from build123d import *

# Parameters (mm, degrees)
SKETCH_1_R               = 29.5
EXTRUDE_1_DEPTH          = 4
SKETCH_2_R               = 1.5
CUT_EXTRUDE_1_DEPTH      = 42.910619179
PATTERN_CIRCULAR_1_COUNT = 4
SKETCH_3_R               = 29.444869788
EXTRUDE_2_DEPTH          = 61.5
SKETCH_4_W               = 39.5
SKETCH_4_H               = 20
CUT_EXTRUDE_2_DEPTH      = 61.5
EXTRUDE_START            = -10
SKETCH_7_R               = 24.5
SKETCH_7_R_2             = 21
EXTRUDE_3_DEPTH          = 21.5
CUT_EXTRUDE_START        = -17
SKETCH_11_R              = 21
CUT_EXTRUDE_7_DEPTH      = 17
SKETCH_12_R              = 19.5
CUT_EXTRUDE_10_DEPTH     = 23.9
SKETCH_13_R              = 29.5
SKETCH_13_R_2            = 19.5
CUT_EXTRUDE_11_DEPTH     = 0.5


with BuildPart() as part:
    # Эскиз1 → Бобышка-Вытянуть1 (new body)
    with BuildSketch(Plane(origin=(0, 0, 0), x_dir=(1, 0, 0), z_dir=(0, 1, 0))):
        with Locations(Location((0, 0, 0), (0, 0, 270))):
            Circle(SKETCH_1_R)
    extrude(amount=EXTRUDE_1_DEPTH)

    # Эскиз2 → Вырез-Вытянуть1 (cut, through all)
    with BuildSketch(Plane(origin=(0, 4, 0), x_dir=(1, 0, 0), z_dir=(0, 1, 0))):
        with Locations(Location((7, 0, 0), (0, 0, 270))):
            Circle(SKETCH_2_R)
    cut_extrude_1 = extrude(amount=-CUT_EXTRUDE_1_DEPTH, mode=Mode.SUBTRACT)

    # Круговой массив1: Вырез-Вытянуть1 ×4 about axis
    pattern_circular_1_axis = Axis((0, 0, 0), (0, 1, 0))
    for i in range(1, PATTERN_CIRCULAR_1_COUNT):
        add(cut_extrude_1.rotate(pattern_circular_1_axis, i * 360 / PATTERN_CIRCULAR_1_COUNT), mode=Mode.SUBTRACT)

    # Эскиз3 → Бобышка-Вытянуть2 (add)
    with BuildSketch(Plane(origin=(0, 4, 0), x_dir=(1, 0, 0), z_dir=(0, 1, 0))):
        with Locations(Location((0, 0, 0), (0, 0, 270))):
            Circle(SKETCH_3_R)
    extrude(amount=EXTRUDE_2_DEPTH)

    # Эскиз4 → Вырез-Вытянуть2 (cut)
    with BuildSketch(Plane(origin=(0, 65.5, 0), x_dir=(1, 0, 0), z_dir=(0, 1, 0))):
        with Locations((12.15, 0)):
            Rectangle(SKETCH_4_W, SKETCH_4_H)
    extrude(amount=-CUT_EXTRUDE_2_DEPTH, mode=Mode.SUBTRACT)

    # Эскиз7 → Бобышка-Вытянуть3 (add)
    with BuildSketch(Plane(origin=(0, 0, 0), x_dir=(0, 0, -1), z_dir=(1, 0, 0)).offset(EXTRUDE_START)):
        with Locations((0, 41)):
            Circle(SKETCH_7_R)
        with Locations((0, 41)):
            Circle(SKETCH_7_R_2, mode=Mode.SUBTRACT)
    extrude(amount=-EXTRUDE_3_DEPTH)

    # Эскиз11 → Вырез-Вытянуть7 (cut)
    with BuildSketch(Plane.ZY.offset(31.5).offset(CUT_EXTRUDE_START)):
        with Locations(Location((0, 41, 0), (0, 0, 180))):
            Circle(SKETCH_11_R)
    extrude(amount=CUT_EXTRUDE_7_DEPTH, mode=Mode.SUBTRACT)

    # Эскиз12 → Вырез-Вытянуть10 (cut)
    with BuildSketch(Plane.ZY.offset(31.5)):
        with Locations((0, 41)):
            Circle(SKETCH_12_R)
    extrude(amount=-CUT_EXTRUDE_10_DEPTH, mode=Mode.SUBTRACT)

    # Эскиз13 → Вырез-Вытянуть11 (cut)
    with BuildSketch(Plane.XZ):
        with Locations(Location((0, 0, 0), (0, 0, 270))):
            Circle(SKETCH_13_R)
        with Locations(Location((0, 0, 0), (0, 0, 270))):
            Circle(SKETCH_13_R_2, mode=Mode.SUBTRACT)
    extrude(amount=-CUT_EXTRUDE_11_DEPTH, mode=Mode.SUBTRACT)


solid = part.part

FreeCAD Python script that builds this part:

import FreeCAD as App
import Part
import Sketcher
from FreeCAD import Vector

doc = App.newDocument("Part")
body = doc.addObject("PartDesign::Body", "Body")

# Sketch on XZ plane
sketch1 = doc.addObject("Sketcher::SketchObject", "Sketch")
body.addObject(sketch1)
sketch1.AttachmentSupport = (doc.XZ_Plane, [""])
sketch1.MapMode = "FlatFace"
sketch1.addGeometry(Part.Circle(Vector(0, 0, 0), Vector(0, 0, 1), 30), False)
sketch1.addConstraint(Sketcher.Constraint("Coincident", 0, 3, -1, 1))
sketch1.addConstraint(Sketcher.Constraint("Diameter", 0, 59.0))
pad1 = doc.addObject("PartDesign::Pad", "Pad")
body.addObject(pad1)
pad1.Profile = sketch1
pad1.Length = 4
pad1.Reversed = True

# Sketch on XZ plane
sketch2 = doc.addObject("Sketcher::SketchObject", "Sketch001")
body.addObject(sketch2)
sketch2.AttachmentSupport = (doc.XZ_Plane, [""])
sketch2.MapMode = "FlatFace"
sketch2.AttachmentOffset = App.Placement(Vector(0, 0, -4), App.Rotation())
sketch2.addGeometry(Part.Circle(Vector(7, 0, 0), Vector(0, 0, 1), 1.5), False)
sketch2.addConstraint(Sketcher.Constraint("PointOnObject", 0, 3, -1))
sketch2.addConstraint(Sketcher.Constraint("Diameter", 0, 3.0))
sketch2.addConstraint(Sketcher.Constraint("DistanceX", -1, 1, 0, 3, 7.0))
pocket1 = doc.addObject("PartDesign::Pocket", "Pocket")
body.addObject(pocket1)
pocket1.Profile = sketch2
pocket1.Type = "ThroughAll"
pocket1.Reversed = True
doc.recompute()

polarpattern = doc.addObject("PartDesign::PolarPattern", "PolarPattern")
body.addObject(polarpattern)
polarpattern.Originals = [pocket1]
polarpattern.Axis = (doc.Y_Axis, [""])
polarpattern.Angle = 360
polarpattern.Occurrences = 4
body.Tip = polarpattern

# Sketch on XZ plane
sketch3 = doc.addObject("Sketcher::SketchObject", "Sketch002")
body.addObject(sketch3)
sketch3.AttachmentSupport = (doc.XZ_Plane, [""])
sketch3.MapMode = "FlatFace"
sketch3.AttachmentOffset = App.Placement(Vector(0, 0, -4), App.Rotation())
sketch3.addGeometry(Part.Circle(Vector(0, 0, 0), Vector(0, 0, 1), 29), False)
sketch3.addConstraint(Sketcher.Constraint("Coincident", 0, 3, -1, 1))
sketch3.addConstraint(Sketcher.Constraint("Diameter", 0, 58.88974))
pad2 = doc.addObject("PartDesign::Pad", "Pad001")
body.addObject(pad2)
pad2.Profile = sketch3
pad2.Length = 61.5
pad2.Reversed = True

# Sketch on XZ plane
sketch4 = doc.addObject("Sketcher::SketchObject", "Sketch003")
body.addObject(sketch4)
sketch4.AttachmentSupport = (doc.XZ_Plane, [""])
sketch4.MapMode = "FlatFace"
sketch4.AttachmentOffset = App.Placement(Vector(0, 0, -65.5), App.Rotation())
sketch4.addGeometry(Part.LineSegment(Vector(-8, -10, 0), Vector(-8, 10, 0)), False)
sketch4.addGeometry(Part.LineSegment(Vector(-8, 10, 0), Vector(32, 10, 0)), False)
sketch4.addGeometry(Part.LineSegment(Vector(32, 10, 0), Vector(32, -10, 0)), False)
sketch4.addGeometry(Part.LineSegment(Vector(32, -10, 0), Vector(-8, -10, 0)), False)
sketch4.addConstraint(Sketcher.Constraint("Coincident", 0, 2, 1, 1))
sketch4.addConstraint(Sketcher.Constraint("Coincident", 1, 2, 2, 1))
sketch4.addConstraint(Sketcher.Constraint("Coincident", 2, 2, 3, 1))
sketch4.addConstraint(Sketcher.Constraint("Coincident", 3, 2, 0, 1))
sketch4.addConstraint(Sketcher.Constraint("Vertical", 0))
sketch4.addConstraint(Sketcher.Constraint("Horizontal", 1))
sketch4.addConstraint(Sketcher.Constraint("Vertical", 2))
sketch4.addConstraint(Sketcher.Constraint("Horizontal", 3))
sketch4.addConstraint(Sketcher.Constraint("DistanceY", 0, 1, 0, 2, 20.0))
sketch4.addConstraint(Sketcher.Constraint("DistanceX", 1, 1, 1, 2, 39.5))
sketch4.addConstraint(Sketcher.Constraint("DistanceY", -1, 1, 0, 2, 10.0))
sketch4.addConstraint(Sketcher.Constraint("DistanceX", 0, 2, -1, 1, 7.6))
pocket2 = doc.addObject("PartDesign::Pocket", "Pocket001")
body.addObject(pocket2)
pocket2.Profile = sketch4
pocket2.Length = 61.5
pocket2.Reversed = True

# Sketch on YZ plane
sketch5 = doc.addObject("Sketcher::SketchObject", "Sketch004")
body.addObject(sketch5)
sketch5.AttachmentSupport = (doc.YZ_Plane, [""])
sketch5.MapMode = "FlatFace"
sketch5.AttachmentOffset = App.Placement(Vector(0, 0, -10), App.Rotation())
sketch5.addGeometry(Part.Circle(Vector(41, 0, 0), Vector(0, 0, 1), 24), False)
sketch5.addGeometry(Part.Circle(Vector(41, 0, 0), Vector(0, 0, 1), 21), False)
sketch5.addConstraint(Sketcher.Constraint("Coincident", 1, 3, 0, 3))
sketch5.addConstraint(Sketcher.Constraint("PointOnObject", 0, 3, -1))
sketch5.addConstraint(Sketcher.Constraint("Diameter", 0, 49.0))
sketch5.addConstraint(Sketcher.Constraint("Diameter", 1, 42.0))
sketch5.addConstraint(Sketcher.Constraint("DistanceX", -1, 1, 0, 3, 41.0))
pad3 = doc.addObject("PartDesign::Pad", "Pad002")
body.addObject(pad3)
pad3.Profile = sketch5
pad3.Length = 21.5
pad3.Reversed = True

# Sketch on YZ plane
sketch6 = doc.addObject("Sketcher::SketchObject", "Sketch005")
body.addObject(sketch6)
sketch6.AttachmentSupport = (doc.YZ_Plane, [""])
sketch6.MapMode = "FlatFace"
sketch6.AttachmentOffset = App.Placement(Vector(0, 0, -14.5), App.Rotation())
sketch6.addGeometry(Part.Circle(Vector(41, 0, 0), Vector(0, 0, 1), 21), False)
sketch6.addConstraint(Sketcher.Constraint("PointOnObject", 0, 3, -1))
sketch6.addConstraint(Sketcher.Constraint("Diameter", 0, 42.0))
sketch6.addConstraint(Sketcher.Constraint("DistanceX", -1, 1, 0, 3, 41.0))
pocket3 = doc.addObject("PartDesign::Pocket", "Pocket002")
body.addObject(pocket3)
pocket3.Profile = sketch6
pocket3.Length = 17

# Sketch on YZ plane
sketch7 = doc.addObject("Sketcher::SketchObject", "Sketch006")
body.addObject(sketch7)
sketch7.AttachmentSupport = (doc.YZ_Plane, [""])
sketch7.MapMode = "FlatFace"
sketch7.AttachmentOffset = App.Placement(Vector(0, 0, -31.5), App.Rotation())
sketch7.addGeometry(Part.Circle(Vector(41, 0, 0), Vector(0, 0, 1), 20), False)
sketch7.addConstraint(Sketcher.Constraint("PointOnObject", 0, 3, -1))
sketch7.addConstraint(Sketcher.Constraint("Diameter", 0, 39.0))
sketch7.addConstraint(Sketcher.Constraint("DistanceX", -1, 1, 0, 3, 41.0))
pocket4 = doc.addObject("PartDesign::Pocket", "Pocket003")
body.addObject(pocket4)
pocket4.Profile = sketch7
pocket4.Length = 23.9
pocket4.Reversed = True

# Sketch on XZ plane
sketch8 = doc.addObject("Sketcher::SketchObject", "Sketch007")
body.addObject(sketch8)
sketch8.AttachmentSupport = (doc.XZ_Plane, [""])
sketch8.MapMode = "FlatFace"
sketch8.addGeometry(Part.Circle(Vector(0, 0, 0), Vector(0, 0, 1), 30), False)
sketch8.addGeometry(Part.Circle(Vector(0, 0, 0), Vector(0, 0, 1), 20), False)
sketch8.addConstraint(Sketcher.Constraint("Coincident", 0, 3, -1, 1))
sketch8.addConstraint(Sketcher.Constraint("Coincident", 1, 3, -1, 1))
sketch8.addConstraint(Sketcher.Constraint("Diameter", 0, 59.0))
sketch8.addConstraint(Sketcher.Constraint("Diameter", 1, 39.0))
pocket5 = doc.addObject("PartDesign::Pocket", "Pocket004")
body.addObject(pocket5)
pocket5.Profile = sketch8
pocket5.Length = 0.5

doc.recompute()
